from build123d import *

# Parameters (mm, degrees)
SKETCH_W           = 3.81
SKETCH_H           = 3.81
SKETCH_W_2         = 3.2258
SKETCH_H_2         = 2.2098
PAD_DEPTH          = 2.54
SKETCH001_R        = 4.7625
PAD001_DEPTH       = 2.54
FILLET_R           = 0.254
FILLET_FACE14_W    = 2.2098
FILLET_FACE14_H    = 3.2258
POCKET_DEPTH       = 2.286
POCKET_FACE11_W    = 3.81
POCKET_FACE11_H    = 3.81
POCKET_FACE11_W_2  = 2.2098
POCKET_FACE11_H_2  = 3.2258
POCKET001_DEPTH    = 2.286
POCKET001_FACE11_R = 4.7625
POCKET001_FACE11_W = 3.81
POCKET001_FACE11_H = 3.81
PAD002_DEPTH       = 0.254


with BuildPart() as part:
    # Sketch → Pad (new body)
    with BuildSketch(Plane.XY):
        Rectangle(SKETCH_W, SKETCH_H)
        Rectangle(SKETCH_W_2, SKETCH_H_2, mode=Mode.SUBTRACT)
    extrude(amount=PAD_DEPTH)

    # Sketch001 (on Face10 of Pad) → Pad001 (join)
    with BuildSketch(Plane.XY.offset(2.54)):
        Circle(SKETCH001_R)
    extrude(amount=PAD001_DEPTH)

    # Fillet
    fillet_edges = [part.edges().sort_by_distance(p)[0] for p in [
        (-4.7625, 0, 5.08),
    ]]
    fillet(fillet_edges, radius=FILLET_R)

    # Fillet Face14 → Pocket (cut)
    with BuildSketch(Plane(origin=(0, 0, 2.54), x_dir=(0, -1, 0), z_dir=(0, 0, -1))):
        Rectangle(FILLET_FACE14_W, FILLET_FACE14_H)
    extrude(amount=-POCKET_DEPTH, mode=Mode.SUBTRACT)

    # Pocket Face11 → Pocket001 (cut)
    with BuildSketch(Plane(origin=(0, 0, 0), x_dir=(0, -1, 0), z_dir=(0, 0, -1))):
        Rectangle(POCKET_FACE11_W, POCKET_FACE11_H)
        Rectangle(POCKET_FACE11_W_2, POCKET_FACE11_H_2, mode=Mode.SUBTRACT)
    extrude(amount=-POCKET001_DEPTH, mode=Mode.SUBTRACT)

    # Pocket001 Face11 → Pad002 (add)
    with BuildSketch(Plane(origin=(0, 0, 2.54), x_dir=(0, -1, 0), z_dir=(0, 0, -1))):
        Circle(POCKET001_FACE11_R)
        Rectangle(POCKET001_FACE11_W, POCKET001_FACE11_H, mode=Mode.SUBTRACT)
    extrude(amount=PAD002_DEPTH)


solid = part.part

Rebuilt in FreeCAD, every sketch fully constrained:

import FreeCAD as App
import Part
import Sketcher

V = App.Vector
Q = App.Units.Quantity


def edges_at(feature, points):
    """Names of the edges that pass closest to the given points."""
    edges = feature.Shape.Edges
    near = lambda p: min(range(len(edges)), key=lambda i: edges[i].distToShape(Part.Vertex(*p))[0])
    return sorted({f"Edge{near(p) + 1}" for p in points})


def add_polygon(sketch, points):
    """Adds a closed chain of lines whose ends are joined by coincident constraints."""
    first, n = sketch.GeometryCount, len(points)
    for a, b in zip(points, points[1:] + points[:1]):
        sketch.addGeometry(Part.LineSegment(App.Vector(*a, 0), App.Vector(*b, 0)), False)
    for i in range(n):
        sketch.addConstraint(Sketcher.Constraint("Coincident", first + i, 2, first + (i + 1) % n, 1))

doc = App.newDocument("Part")
body = doc.addObject("PartDesign::Body", "Body")

sketch1 = body.newObject("Sketcher::SketchObject", "Sketch")
sketch1.AttachmentSupport = (doc.getObject("XY_Plane"), [""])
sketch1.MapMode = "FlatFace"
add_polygon(sketch1, [(-1.905, 1.905), (-1.905, -1.905), (1.905, -1.905), (1.905, 1.905)])
add_polygon(sketch1, [(1.6129, -1.1049), (-1.6129, -1.1049), (-1.6129, 1.1049), (1.6129, 1.1049)])
sketch1.addConstraint([
    Sketcher.Constraint("Vertical", 0),
    Sketcher.Constraint("Horizontal", 1),
    Sketcher.Constraint("Vertical", 2),
    Sketcher.Constraint("Horizontal", 3),
    Sketcher.Constraint("Horizontal", 4),
    Sketcher.Constraint("Vertical", 5),
    Sketcher.Constraint("Horizontal", 6),
    Sketcher.Constraint("Vertical", 7),
    Sketcher.Constraint("Symmetric", 0, 2, 2, 2, -1, 1),
    Sketcher.Constraint("Symmetric", 4, 2, 6, 2, -1, 1),
    Sketcher.Constraint("Equal", 3, 0),
    Sketcher.Constraint("DistanceX", 1, 1, 1, 2, Q("0.15 in")),
    Sketcher.Constraint("DistanceX", 4, 2, 4, 1, Q("0.127 in")),
    Sketcher.Constraint("DistanceY", 5, 1, 5, 2, Q("0.087 in")),
])
pad1 = body.newObject("PartDesign::Pad", "Pad")
pad1.Profile = sketch1
pad1.Length = Q("0.1 in")

sketch2 = body.newObject("Sketcher::SketchObject", "Sketch001")
sketch2.AttachmentSupport = (doc.getObject("XY_Plane"), [""])
sketch2.MapMode = "FlatFace"
sketch2.AttachmentOffset = App.Placement(V(0, 0, 0.1 * 25.4), App.Rotation())
sketch2.addGeometry(Part.Circle(V(0, 0, 0), V(0, 0, 1), 4.7625), False)
sketch2.addConstraint([
    Sketcher.Constraint("Coincident", 0, 3, -1, 1),
    Sketcher.Constraint("Diameter", 0, Q("0.375 in")),
])
pad2 = body.newObject("PartDesign::Pad", "Pad001")
pad2.Profile = sketch2
pad2.Length = Q("0.1 in")
doc.recompute()

fillet = body.newObject("PartDesign::Fillet", "Fillet")
fillet.Base = (pad2, edges_at(pad2, [(-4.763, 0, 5.08)]))
fillet.Radius = Q("0.01 in")

sketch3 = body.newObject("Sketcher::SketchObject", "Sketch002")
sketch3.AttachmentSupport = (doc.getObject("XY_Plane"), [""])
sketch3.MapMode = "FlatFace"
sketch3.AttachmentOffset = App.Placement(V(0, 0, 0.1 * 25.4), App.Rotation())
add_polygon(sketch3, [(-1.6129, 1.1049), (1.6129, 1.1049), (1.6129, -1.1049), (-1.6129, -1.1049)])
sketch3.addConstraint([
    Sketcher.Constraint("Horizontal", 0),
    Sketcher.Constraint("Vertical", 1),
    Sketcher.Constraint("Horizontal", 2),
    Sketcher.Constraint("Vertical", 3),
    Sketcher.Constraint("Symmetric", 0, 2, 2, 2, -1, 1),
    Sketcher.Constraint("DistanceX", 0, 1, 0, 2, Q("0.127 in")),
    Sketcher.Constraint("DistanceY", 1, 2, 1, 1, Q("0.087 in")),
])
pocket1 = body.newObject("PartDesign::Pocket", "Pocket")
pocket1.Profile = sketch3
pocket1.Length = Q("0.09 in")
pocket1.Reversed = True

sketch4 = body.newObject("Sketcher::SketchObject", "Sketch003")
sketch4.AttachmentSupport = (doc.getObject("XY_Plane"), [""])
sketch4.MapMode = "FlatFace"
add_polygon(sketch4, [(-1.905, 1.905), (1.905, 1.905), (1.905, -1.905), (-1.905, -1.905)])
add_polygon(sketch4, [(1.6129, -1.1049), (1.6129, 1.1049), (-1.6129, 1.1049), (-1.6129, -1.1049)])
sketch4.addConstraint([
    Sketcher.Constraint("Horizontal", 0),
    Sketcher.Constraint("Vertical", 1),
    Sketcher.Constraint("Horizontal", 2),
    Sketcher.Constraint("Vertical", 3),
    Sketcher.Constraint("Vertical", 4),
    Sketcher.Constraint("Horizontal", 5),
    Sketcher.Constraint("Vertical", 6),
    Sketcher.Constraint("Horizontal", 7),
    Sketcher.Constraint("Symmetric", 0, 2, 2, 2, -1, 1),
    Sketcher.Constraint("Symmetric", 4, 2, 6, 2, -1, 1),
    Sketcher.Constraint("Equal", 2, 1),
    Sketcher.Constraint("DistanceX", 0, 1, 0, 2, Q("0.15 in")),
    Sketcher.Constraint("DistanceX", 5, 2, 5, 1, Q("0.127 in")),
    Sketcher.Constraint("DistanceY", 4, 1, 4, 2, Q("0.087 in")),
])
pocket2 = body.newObject("PartDesign::Pocket", "Pocket001")
pocket2.Profile = sketch4
pocket2.Length = Q("0.09 in")
pocket2.Reversed = True

sketch5 = body.newObject("Sketcher::SketchObject", "Sketch004")
sketch5.AttachmentSupport = (doc.getObject("XY_Plane"), [""])
sketch5.MapMode = "FlatFace"
sketch5.AttachmentOffset = App.Placement(V(0, 0, 0.1 * 25.4), App.Rotation())
sketch5.addGeometry(Part.Circle(V(0, 0, 0), V(0, 0, 1), 4.7625), False)
add_polygon(sketch5, [(1.905, -1.905), (1.905, 1.905), (-1.905, 1.905), (-1.905, -1.905)])
sketch5.addConstraint([
    Sketcher.Constraint("Vertical", 1),
    Sketcher.Constraint("Horizontal", 2),
    Sketcher.Constraint("Vertical", 3),
    Sketcher.Constraint("Horizontal", 4),
    Sketcher.Constraint("Coincident", 0, 3, -1, 1),
    Sketcher.Constraint("Symmetric", 1, 2, 3, 2, -1, 1),
    Sketcher.Constraint("Equal", 4, 1),
    Sketcher.Constraint("Diameter", 0, Q("0.375 in")),
    Sketcher.Constraint("DistanceX", 2, 2, 2, 1, Q("0.15 in")),
])
pad3 = body.newObject("PartDesign::Pad", "Pad002")
pad3.Profile = sketch5
pad3.Length = Q("0.01 in")
pad3.Reversed = True

doc.recompute()
